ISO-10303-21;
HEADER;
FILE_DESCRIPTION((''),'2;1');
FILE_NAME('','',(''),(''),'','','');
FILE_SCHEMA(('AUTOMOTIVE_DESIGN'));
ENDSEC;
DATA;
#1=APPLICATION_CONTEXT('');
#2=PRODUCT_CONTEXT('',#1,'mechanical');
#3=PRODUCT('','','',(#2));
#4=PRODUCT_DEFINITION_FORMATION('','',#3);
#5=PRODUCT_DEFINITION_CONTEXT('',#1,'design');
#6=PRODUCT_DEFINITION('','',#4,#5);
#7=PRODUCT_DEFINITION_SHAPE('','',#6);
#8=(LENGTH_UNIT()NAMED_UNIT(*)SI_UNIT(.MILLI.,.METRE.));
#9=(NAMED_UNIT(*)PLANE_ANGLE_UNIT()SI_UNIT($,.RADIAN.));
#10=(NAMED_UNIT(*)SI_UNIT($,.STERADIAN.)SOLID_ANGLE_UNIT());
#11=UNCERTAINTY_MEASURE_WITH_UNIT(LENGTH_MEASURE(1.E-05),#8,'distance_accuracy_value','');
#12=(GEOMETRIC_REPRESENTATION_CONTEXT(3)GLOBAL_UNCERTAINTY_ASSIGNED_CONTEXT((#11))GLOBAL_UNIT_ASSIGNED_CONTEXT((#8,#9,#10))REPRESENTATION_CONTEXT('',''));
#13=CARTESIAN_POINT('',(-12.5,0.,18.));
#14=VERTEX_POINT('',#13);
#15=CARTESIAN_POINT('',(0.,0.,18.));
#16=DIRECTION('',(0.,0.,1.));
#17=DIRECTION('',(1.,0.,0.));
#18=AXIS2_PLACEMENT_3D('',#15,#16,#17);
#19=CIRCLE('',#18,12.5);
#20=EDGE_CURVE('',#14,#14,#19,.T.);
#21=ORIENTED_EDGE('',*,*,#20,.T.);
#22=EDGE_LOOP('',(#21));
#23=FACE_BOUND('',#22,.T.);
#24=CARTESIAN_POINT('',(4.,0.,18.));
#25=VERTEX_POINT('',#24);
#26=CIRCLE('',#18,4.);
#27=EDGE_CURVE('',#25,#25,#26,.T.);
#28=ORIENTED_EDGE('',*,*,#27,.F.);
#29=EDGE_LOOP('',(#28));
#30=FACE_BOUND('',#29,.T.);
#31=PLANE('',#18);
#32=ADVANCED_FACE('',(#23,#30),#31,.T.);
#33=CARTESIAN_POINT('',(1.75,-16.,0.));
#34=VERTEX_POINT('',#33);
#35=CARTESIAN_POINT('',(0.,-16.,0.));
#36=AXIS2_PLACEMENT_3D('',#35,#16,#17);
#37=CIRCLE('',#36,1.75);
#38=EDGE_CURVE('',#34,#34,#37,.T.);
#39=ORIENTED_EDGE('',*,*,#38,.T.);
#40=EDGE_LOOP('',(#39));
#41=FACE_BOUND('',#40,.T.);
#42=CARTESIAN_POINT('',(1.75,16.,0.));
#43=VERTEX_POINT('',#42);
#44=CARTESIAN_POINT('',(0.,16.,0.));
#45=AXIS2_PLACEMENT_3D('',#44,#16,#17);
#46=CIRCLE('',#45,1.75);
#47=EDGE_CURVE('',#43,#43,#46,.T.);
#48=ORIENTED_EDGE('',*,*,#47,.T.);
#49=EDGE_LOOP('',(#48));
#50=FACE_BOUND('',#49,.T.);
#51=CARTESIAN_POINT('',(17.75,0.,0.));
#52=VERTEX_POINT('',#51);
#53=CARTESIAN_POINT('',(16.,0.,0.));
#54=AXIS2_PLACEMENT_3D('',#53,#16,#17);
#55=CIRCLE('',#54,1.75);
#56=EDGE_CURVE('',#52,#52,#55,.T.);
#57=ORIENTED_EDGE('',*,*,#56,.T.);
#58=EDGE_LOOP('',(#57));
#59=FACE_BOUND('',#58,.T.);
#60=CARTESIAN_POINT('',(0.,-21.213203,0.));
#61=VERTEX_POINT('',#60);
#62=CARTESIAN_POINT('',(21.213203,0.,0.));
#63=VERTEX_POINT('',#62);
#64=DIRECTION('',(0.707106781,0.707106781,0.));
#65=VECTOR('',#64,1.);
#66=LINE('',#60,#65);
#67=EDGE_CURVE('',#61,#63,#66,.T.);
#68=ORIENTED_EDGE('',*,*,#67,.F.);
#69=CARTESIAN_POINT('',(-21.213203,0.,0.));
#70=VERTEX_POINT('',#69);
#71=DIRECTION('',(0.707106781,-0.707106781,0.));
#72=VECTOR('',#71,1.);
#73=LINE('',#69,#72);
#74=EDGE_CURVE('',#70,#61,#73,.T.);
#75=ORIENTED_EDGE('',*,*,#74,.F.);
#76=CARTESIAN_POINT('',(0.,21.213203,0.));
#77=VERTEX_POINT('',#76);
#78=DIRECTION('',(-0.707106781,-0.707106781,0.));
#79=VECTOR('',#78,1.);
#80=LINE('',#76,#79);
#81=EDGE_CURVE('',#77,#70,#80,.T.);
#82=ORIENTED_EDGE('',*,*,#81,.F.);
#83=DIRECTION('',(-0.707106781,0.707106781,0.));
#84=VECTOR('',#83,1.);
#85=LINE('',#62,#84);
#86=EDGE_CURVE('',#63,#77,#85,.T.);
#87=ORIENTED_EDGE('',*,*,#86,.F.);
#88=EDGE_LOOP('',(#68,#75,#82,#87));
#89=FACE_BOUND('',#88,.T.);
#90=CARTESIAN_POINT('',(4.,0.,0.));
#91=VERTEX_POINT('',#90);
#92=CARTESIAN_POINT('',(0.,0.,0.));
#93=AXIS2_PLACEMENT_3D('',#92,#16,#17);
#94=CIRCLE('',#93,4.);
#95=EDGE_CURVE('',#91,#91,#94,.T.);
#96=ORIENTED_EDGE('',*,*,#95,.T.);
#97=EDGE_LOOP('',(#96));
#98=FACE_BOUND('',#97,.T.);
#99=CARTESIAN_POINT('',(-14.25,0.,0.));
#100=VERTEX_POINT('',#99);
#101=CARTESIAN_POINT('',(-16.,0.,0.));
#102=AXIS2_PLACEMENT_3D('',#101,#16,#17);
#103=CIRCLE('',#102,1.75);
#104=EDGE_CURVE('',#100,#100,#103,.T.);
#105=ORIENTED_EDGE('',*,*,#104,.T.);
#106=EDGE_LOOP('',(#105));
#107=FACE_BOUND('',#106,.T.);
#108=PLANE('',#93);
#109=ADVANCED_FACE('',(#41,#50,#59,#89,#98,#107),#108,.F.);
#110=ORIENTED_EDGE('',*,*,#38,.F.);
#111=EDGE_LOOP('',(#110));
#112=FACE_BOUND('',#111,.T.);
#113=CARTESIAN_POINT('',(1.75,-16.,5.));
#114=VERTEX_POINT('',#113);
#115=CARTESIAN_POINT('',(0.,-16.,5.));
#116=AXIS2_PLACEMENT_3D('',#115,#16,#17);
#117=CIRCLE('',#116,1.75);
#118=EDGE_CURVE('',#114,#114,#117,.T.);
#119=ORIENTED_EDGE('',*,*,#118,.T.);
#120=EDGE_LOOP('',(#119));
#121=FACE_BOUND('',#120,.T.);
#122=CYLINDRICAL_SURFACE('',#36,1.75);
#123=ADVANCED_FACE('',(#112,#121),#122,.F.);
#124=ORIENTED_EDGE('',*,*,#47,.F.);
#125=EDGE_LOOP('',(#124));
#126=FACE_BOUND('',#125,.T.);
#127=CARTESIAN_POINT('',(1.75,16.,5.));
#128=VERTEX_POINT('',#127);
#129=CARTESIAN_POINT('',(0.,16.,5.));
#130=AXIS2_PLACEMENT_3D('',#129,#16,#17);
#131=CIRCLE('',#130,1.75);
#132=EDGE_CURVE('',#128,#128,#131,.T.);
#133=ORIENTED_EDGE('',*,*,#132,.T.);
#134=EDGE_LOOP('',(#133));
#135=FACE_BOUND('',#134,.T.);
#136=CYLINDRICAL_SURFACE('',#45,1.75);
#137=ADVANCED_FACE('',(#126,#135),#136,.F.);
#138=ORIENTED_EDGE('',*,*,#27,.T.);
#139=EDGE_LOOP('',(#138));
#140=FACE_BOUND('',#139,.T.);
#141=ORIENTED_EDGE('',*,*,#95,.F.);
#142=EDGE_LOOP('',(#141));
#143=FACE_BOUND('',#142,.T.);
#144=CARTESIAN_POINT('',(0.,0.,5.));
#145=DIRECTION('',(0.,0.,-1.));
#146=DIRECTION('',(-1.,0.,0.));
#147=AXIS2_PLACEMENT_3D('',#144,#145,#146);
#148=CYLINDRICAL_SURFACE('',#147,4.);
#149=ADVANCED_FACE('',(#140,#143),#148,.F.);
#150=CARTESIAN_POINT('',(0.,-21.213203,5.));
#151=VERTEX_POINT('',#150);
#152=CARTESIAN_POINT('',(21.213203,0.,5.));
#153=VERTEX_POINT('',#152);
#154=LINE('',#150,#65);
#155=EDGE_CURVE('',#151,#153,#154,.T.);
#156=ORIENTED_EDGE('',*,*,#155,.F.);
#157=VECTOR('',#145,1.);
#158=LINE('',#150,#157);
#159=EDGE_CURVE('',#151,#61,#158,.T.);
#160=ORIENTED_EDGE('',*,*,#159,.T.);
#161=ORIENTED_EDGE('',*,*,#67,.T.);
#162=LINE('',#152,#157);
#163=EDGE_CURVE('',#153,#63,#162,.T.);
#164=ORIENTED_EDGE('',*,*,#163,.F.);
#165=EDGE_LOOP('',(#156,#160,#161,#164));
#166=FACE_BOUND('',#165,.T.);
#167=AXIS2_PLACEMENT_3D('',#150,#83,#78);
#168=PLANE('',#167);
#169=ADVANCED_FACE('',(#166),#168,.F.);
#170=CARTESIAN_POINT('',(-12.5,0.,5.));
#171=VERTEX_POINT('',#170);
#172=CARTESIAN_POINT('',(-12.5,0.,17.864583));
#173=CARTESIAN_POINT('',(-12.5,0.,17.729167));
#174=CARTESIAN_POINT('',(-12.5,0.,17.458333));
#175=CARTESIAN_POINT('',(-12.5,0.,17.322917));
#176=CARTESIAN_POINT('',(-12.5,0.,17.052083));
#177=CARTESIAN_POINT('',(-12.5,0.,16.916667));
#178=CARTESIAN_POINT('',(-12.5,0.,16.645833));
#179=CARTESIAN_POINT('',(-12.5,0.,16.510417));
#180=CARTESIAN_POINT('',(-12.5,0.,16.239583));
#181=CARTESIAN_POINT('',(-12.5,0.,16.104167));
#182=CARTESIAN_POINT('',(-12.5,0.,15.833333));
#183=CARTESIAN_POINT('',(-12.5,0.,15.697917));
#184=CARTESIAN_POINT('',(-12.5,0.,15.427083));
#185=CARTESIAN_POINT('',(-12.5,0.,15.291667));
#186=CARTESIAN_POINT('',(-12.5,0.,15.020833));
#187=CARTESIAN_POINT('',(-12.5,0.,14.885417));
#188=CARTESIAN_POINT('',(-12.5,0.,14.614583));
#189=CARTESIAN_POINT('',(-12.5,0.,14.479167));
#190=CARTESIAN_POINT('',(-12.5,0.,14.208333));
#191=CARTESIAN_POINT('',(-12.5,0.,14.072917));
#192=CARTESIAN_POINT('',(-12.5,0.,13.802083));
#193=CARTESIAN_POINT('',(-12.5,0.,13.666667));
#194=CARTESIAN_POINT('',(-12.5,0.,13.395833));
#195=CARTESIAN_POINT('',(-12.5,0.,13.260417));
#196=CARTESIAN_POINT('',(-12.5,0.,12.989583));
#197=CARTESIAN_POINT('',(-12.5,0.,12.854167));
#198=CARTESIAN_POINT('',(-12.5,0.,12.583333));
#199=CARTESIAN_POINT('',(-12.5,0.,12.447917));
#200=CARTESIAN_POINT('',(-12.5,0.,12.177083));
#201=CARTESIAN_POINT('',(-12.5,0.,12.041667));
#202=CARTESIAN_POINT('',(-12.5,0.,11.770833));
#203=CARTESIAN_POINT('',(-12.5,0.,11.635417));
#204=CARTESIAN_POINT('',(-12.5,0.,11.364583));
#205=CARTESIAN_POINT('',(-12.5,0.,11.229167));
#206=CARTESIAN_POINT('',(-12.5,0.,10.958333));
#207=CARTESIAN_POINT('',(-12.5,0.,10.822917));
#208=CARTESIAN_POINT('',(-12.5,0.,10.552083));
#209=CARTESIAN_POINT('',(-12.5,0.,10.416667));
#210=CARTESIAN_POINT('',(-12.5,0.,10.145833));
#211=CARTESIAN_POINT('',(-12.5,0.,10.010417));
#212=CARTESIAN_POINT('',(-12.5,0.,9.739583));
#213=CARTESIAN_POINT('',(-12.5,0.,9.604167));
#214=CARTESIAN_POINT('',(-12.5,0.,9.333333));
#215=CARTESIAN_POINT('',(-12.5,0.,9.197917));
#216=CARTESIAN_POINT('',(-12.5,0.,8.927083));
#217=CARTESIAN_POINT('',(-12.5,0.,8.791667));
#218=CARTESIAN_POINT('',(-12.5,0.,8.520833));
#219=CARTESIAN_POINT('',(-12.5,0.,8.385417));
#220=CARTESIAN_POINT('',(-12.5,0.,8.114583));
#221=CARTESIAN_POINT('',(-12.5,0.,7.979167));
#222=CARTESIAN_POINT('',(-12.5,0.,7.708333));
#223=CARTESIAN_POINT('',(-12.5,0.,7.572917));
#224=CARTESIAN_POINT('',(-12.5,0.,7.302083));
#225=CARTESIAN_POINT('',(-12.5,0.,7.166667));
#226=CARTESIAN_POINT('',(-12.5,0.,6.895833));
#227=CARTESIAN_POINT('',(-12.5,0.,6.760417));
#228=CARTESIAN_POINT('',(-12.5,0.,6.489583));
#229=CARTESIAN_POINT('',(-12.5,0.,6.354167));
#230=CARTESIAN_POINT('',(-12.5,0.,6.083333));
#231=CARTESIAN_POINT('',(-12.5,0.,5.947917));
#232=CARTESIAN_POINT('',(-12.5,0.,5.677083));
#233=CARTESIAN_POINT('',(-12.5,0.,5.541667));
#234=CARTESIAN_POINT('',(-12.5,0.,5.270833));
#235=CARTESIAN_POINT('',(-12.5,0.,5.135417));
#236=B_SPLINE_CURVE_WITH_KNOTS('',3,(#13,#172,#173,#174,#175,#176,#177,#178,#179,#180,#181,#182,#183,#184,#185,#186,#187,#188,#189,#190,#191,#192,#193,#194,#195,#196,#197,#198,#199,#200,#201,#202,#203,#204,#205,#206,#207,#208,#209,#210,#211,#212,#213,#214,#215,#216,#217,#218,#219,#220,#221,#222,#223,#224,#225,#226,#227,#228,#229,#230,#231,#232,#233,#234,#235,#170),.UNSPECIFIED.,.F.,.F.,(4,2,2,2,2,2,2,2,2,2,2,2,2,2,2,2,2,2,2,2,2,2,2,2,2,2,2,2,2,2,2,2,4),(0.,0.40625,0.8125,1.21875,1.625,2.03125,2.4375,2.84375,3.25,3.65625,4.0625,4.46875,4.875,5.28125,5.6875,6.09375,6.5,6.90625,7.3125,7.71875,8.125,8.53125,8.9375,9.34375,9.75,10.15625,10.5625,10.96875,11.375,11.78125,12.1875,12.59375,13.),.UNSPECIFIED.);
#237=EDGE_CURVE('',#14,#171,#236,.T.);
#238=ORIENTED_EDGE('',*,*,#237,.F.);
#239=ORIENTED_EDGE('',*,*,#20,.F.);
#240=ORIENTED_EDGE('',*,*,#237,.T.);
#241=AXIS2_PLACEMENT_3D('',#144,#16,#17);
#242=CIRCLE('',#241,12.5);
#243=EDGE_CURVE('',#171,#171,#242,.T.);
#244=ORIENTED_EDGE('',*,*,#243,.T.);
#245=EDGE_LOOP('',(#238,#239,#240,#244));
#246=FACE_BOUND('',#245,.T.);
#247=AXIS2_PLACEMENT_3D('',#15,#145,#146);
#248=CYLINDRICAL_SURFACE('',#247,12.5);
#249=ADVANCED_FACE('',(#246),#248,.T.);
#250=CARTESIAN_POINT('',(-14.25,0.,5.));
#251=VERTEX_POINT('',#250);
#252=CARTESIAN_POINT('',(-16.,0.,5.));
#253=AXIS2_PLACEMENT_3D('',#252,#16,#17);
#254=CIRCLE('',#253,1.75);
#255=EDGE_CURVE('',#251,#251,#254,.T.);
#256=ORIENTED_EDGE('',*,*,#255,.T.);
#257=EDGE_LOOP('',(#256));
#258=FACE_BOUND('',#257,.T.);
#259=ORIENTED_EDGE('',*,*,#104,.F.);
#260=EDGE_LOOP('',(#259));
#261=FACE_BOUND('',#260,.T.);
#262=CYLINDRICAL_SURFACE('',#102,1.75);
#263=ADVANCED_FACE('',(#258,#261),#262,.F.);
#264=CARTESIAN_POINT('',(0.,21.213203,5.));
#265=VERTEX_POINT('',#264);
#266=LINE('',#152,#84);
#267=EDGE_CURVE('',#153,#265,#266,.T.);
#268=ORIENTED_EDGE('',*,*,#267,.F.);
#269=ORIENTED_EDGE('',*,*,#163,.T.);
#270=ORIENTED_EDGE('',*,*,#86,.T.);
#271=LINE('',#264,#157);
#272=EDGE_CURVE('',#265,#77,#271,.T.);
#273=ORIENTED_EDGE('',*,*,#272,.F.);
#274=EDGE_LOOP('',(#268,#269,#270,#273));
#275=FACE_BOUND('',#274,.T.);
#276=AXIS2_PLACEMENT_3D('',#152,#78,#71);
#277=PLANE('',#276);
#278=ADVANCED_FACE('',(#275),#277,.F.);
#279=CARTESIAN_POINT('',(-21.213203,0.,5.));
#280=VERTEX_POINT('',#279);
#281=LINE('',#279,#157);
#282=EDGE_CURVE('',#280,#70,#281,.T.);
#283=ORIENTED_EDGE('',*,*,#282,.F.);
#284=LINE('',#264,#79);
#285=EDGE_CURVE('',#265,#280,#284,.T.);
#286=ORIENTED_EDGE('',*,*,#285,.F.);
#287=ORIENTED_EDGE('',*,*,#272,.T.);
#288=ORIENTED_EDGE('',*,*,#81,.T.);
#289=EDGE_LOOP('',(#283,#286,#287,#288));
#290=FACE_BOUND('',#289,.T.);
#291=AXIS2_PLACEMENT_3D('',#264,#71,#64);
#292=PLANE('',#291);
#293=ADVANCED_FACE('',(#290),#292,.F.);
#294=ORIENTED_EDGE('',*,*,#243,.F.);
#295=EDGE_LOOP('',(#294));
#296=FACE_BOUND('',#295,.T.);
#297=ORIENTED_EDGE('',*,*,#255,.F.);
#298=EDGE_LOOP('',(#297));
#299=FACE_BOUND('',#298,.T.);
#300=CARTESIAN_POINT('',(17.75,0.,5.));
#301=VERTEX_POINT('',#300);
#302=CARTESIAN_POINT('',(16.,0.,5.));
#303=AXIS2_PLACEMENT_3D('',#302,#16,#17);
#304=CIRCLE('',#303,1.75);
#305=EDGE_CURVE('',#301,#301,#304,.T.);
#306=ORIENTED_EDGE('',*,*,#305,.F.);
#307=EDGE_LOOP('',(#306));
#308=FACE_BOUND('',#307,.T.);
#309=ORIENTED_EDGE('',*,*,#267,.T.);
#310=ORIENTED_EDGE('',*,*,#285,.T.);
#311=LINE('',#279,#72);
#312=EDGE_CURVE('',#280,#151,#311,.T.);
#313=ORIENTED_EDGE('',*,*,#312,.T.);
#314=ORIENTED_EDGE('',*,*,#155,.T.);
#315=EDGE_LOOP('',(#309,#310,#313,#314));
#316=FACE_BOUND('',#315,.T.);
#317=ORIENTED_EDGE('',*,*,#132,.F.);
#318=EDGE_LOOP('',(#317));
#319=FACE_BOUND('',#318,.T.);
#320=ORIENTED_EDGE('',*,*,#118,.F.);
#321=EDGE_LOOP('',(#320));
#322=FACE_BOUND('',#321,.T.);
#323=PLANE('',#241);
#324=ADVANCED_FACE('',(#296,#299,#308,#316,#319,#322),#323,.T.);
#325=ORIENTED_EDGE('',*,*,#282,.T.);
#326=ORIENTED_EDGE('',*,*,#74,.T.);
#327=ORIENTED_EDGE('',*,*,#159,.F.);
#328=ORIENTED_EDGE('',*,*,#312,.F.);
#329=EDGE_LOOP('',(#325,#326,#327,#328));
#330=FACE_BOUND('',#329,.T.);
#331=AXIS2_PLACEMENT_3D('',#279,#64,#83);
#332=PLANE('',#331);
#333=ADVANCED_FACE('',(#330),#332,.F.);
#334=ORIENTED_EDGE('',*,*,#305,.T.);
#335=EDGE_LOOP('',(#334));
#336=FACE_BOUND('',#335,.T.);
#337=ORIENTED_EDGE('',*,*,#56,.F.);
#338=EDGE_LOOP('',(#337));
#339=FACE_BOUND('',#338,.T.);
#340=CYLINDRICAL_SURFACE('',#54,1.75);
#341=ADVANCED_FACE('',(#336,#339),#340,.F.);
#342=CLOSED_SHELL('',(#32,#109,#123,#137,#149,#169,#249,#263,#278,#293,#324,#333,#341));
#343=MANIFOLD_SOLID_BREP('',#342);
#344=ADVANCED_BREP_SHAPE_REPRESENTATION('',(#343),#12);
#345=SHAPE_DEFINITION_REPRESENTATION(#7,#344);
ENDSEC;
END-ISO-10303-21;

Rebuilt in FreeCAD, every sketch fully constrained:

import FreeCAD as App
import Part
import Sketcher
Q = App.Units.Quantity


def add_polygon(sketch, points):
    """Adds a closed chain of lines whose ends are joined by coincident constraints."""
    first, n = sketch.GeometryCount, len(points)
    for a, b in zip(points, points[1:] + points[:1]):
        sketch.addGeometry(Part.LineSegment(App.Vector(*a, 0), App.Vector(*b, 0)), False)
    for i in range(n):
        sketch.addConstraint(Sketcher.Constraint("Coincident", first + i, 2, first + (i + 1) % n, 1))

doc = App.newDocument("Part")
params = doc.addObject("Spreadsheet::Sheet", "Params")
for row, (alias, value) in enumerate([
    ("sketch1_diameter", "8 mm"),
    ("sketch1_length", "30 mm"),
    ("pad1_length", "5 mm"),
    ("sketch2_diameter", "3.5 mm"),
    ("pocket1_length", "5 mm"),
    ("sketch3_diameter", "25 mm"),
    ("sketch3_diameter2", "8 mm"),
    ("pad2_length", "13 mm"),
], start=1):
    params.set(f"A{row}", alias)
    params.set(f"B{row}", "=" + value)
    params.setAlias(f"B{row}", alias)

body = doc.addObject("PartDesign::Body", "Body")

# Sketch on XY plane
sketch1 = doc.addObject("Sketcher::SketchObject", "Sketch")
body.addObject(sketch1)
sketch1.AttachmentSupport = (doc.XY_Plane, [""])
sketch1.MapMode = "FlatFace"
add_polygon(sketch1, [(0, 21.2), (-21.2, 0), (0, -21.2), (21.2, 0)])  # lines 0-3
sketch1.addGeometry(Part.Circle(App.Vector(0, 0, 0), App.Vector(0, 0, 1), 4), False)  # 4
sketch1.addConstraint([
    Sketcher.Constraint("Coincident", 4, 3, -1, 1),
    Sketcher.Constraint("Symmetric", 0, 2, 2, 2, -1, 1),
    Sketcher.Constraint("Symmetric", 1, 2, 3, 2, -1, 1),
    Sketcher.Constraint("PointOnObject", 0, 2, -1),
    Sketcher.Constraint("PointOnObject", 1, 2, -2),
    Sketcher.Constraint("Perpendicular", 0, 1),
    Sketcher.Constraint("Diameter", 4, Q("8 mm")),
    Sketcher.Constraint("Distance", 0, Q("30 mm")),
])
sketch1.setExpression("Constraints[10]", "Params.sketch1_diameter")
sketch1.setExpression("Constraints[11]", "Params.sketch1_length")
pad1 = doc.addObject("PartDesign::Pad", "Pad")
body.addObject(pad1)
pad1.Profile = sketch1
pad1.setExpression("Length", "Params.pad1_length")

# Sketch on XY plane
sketch2 = doc.addObject("Sketcher::SketchObject", "Sketch001")
body.addObject(sketch2)
sketch2.AttachmentSupport = (doc.XY_Plane, [""])
sketch2.MapMode = "FlatFace"
sketch2.AttachmentOffset = App.Placement(App.Vector(0, 0, 5), App.Rotation())
sketch2.addGeometry([
    Part.Circle(App.Vector(16, 0, 0), App.Vector(0, 0, 1), 1.8),
    Part.Circle(App.Vector(0, -16, 0), App.Vector(0, 0, 1), 1.8),
    Part.Circle(App.Vector(-16, 0, 0), App.Vector(0, 0, 1), 1.8),
    Part.Circle(App.Vector(0, 16, 0), App.Vector(0, 0, 1), 1.8),
], False)
sketch2.addConstraint([
    Sketcher.Constraint("Equal", 0, 1),
    Sketcher.Constraint("Equal", 1, 2),
    Sketcher.Constraint("Equal", 2, 3),
    Sketcher.Constraint("Symmetric", 0, 3, 2, 3, -1, 1),
    Sketcher.Constraint("Symmetric", 1, 3, 3, 3, -1, 1),
    Sketcher.Constraint("PointOnObject", 0, 3, -1),
    Sketcher.Constraint("PointOnObject", 1, 3, -2),
    Sketcher.Constraint("Diameter", 0, Q("3.5 mm")),
    Sketcher.Constraint("DistanceX", -1, 1, 0, 3, Q("16 mm")),
    Sketcher.Constraint("DistanceY", 1, 3, -1, 1, Q("16 mm")),
])
sketch2.setExpression("Constraints[7]", "Params.sketch2_diameter")
pocket1 = doc.addObject("PartDesign::Pocket", "Pocket")
body.addObject(pocket1)
pocket1.Profile = sketch2
pocket1.setExpression("Length", "Params.pocket1_length")

# Sketch on XY plane
sketch3 = doc.addObject("Sketcher::SketchObject", "Sketch002")
body.addObject(sketch3)
sketch3.AttachmentSupport = (doc.XY_Plane, [""])
sketch3.MapMode = "FlatFace"
sketch3.AttachmentOffset = App.Placement(App.Vector(0, 0, 5), App.Rotation())
sketch3.addGeometry([
    Part.Circle(App.Vector(0, 0, 0), App.Vector(0, 0, 1), 12.5),
    Part.Circle(App.Vector(0, 0, 0), App.Vector(0, 0, 1), 4),
], False)
sketch3.addConstraint([
    Sketcher.Constraint("Coincident", 0, 3, -1, 1),
    Sketcher.Constraint("Coincident", 1, 3, -1, 1),
    Sketcher.Constraint("Diameter", 0, Q("25 mm")),
    Sketcher.Constraint("Diameter", 1, Q("8 mm")),
])
sketch3.setExpression("Constraints[2]", "Params.sketch3_diameter")
sketch3.setExpression("Constraints[3]", "Params.sketch3_diameter2")
pad2 = doc.addObject("PartDesign::Pad", "Pad001")
body.addObject(pad2)
pad2.Profile = sketch3
pad2.setExpression("Length", "Params.pad2_length")

doc.recompute()
